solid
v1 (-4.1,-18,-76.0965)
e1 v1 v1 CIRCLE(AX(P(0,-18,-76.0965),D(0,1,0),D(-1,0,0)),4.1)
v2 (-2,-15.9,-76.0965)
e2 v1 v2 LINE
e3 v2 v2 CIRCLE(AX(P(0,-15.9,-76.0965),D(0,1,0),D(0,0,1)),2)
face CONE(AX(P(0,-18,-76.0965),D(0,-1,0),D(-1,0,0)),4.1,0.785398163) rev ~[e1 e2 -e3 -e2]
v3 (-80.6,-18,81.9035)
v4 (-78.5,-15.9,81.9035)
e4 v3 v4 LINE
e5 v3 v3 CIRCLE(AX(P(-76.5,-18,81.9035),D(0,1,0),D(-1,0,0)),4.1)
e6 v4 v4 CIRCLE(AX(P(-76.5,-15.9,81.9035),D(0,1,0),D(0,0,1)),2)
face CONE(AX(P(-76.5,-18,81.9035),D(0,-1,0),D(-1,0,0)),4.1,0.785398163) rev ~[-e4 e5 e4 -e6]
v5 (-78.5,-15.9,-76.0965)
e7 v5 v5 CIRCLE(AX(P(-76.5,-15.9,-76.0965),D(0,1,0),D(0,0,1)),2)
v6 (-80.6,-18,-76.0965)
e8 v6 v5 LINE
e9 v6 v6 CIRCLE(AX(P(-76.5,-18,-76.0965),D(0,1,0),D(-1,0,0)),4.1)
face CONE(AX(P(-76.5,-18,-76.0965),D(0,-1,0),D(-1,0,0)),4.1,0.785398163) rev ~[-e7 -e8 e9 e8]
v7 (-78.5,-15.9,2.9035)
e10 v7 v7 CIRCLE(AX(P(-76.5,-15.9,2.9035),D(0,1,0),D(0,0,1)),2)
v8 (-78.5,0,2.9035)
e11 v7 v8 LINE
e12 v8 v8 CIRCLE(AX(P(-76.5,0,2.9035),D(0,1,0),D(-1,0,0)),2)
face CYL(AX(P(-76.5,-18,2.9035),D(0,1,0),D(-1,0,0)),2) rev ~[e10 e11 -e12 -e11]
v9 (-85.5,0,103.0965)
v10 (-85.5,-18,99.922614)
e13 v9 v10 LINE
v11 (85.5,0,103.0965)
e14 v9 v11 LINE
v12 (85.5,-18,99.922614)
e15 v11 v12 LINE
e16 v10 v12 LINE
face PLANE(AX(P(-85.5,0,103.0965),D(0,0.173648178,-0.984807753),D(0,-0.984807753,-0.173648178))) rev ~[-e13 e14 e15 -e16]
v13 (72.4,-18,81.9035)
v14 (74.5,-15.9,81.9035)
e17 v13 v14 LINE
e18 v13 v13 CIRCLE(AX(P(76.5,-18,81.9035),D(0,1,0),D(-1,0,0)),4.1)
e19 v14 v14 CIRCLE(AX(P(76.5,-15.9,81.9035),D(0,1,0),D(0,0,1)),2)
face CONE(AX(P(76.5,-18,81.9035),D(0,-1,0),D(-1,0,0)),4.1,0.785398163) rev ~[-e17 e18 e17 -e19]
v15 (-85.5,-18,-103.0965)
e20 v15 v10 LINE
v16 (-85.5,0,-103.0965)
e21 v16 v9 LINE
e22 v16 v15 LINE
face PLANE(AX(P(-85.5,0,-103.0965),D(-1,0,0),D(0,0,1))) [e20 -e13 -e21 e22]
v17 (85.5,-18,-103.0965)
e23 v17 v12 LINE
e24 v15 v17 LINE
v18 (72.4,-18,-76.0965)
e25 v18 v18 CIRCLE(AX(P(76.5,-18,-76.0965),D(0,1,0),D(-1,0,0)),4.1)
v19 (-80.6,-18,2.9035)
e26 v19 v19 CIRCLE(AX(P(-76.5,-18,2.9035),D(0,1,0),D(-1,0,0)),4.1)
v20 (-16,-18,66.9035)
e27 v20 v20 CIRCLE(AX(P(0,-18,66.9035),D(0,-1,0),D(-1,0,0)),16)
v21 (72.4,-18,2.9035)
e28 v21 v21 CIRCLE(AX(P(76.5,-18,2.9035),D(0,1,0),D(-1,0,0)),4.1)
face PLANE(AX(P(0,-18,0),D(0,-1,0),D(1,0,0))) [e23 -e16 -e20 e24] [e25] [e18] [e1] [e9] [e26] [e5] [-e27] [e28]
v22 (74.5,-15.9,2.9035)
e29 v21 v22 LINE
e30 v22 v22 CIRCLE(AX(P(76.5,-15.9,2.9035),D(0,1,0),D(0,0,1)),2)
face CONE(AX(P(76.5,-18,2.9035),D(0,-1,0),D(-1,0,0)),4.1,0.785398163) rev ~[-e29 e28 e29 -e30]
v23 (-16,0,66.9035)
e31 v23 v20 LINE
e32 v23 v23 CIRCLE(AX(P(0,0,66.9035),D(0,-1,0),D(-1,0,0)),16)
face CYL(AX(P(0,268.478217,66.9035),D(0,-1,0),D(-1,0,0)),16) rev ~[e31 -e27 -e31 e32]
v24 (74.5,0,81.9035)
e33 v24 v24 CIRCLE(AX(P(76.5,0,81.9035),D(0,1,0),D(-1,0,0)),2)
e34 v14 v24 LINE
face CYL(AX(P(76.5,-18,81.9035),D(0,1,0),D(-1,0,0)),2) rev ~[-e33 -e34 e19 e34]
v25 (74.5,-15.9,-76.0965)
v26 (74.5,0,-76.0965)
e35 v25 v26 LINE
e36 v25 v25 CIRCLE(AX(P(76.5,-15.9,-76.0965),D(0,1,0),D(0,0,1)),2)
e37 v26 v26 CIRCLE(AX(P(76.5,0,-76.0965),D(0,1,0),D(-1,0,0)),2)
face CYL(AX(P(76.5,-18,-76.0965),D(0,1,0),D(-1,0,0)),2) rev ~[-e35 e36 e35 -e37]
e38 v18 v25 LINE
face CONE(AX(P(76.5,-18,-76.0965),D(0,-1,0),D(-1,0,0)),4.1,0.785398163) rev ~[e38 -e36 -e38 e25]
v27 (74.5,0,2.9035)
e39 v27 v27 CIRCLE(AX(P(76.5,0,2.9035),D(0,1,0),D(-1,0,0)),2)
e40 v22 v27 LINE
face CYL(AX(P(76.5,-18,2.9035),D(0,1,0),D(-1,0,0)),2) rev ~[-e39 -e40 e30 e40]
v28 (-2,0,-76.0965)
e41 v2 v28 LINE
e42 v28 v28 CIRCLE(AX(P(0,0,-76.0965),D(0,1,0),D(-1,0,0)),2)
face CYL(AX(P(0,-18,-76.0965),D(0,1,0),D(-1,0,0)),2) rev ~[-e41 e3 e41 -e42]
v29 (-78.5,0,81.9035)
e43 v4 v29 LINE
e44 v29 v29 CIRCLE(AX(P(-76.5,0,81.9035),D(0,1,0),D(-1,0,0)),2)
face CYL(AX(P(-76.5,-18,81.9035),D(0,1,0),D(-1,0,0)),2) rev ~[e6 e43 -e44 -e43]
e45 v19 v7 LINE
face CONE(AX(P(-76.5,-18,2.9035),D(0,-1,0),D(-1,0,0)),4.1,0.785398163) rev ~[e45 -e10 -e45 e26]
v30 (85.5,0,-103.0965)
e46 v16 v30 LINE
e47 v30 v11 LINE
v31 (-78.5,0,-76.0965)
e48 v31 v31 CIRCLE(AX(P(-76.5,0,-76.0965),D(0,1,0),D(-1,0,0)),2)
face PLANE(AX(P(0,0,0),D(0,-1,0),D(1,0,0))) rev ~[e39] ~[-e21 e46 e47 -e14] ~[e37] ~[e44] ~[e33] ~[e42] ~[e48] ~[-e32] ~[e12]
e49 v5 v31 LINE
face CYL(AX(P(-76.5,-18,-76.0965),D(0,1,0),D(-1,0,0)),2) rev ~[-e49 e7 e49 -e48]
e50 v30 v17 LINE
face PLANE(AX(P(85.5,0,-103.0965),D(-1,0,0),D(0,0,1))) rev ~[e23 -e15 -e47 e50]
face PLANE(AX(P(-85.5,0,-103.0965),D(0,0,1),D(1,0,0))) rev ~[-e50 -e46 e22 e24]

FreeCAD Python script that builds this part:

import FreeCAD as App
import Part
import Sketcher
from FreeCAD import Vector
Q = App.Units.Quantity

doc = App.newDocument("Part")
body = doc.addObject("PartDesign::Body", "Body")

# Sketch on XZ plane
sketch1 = body.newObject("Sketcher::SketchObject", "Sketch")
sketch1.AttachmentSupport = (doc.getObject("XZ_Plane"), [""])
sketch1.MapMode = "FlatFace"
sketch1.addGeometry([
    Part.LineSegment(Vector(-85.5, 103.0965, 0), Vector(-85.5, -103.0965, 0)),
    Part.LineSegment(Vector(-85.5, -103.0965, 0), Vector(85.5, -103.0965, 0)),
    Part.LineSegment(Vector(85.5, -103.0965, 0), Vector(85.5, 103.0965, 0)),
    Part.LineSegment(Vector(85.5, 103.0965, 0), Vector(-85.5, 103.0965, 0)),
], False)
sketch1.addConstraint([
    Sketcher.Constraint("Coincident", 0, 2, 1, 1),
    Sketcher.Constraint("Coincident", 1, 2, 2, 1),
    Sketcher.Constraint("Coincident", 2, 2, 3, 1),
    Sketcher.Constraint("Coincident", 3, 2, 0, 1),
    Sketcher.Constraint("Vertical", 0),
    Sketcher.Constraint("Horizontal", 1),
    Sketcher.Constraint("Vertical", 2),
    Sketcher.Constraint("Horizontal", 3),
    Sketcher.Constraint("Symmetric", 0, 2, 2, 2, -1, 1),
    Sketcher.Constraint("DistanceX", 1, 1, 1, 2, Q("171 mm")),
    Sketcher.Constraint("DistanceY", 0, 2, 0, 1, Q("206.193 mm")),
])
pad1 = body.newObject("PartDesign::Pad", "Pad")
pad1.Profile = sketch1
pad1.Length = 18

# Sketch on XZ plane
sketch2 = body.newObject("Sketcher::SketchObject", "Sketch001")
sketch2.AttachmentSupport = (doc.getObject("XZ_Plane"), [""])
sketch2.MapMode = "FlatFace"
sketch2.addGeometry(Part.Circle(Vector(0, 66.9035, 0), Vector(0, 0, 1), 16), False)
sketch2.addConstraint([
    Sketcher.Constraint("PointOnObject", 0, 3, -2),
    Sketcher.Constraint("Diameter", 0, Q("32 mm")),
    Sketcher.Constraint("DistanceY", -1, 1, 0, 3, Q("66.9035 mm")),
])
doc.recompute()
hole = body.newObject("PartDesign::Hole", "Hole")
hole.Profile = sketch2
hole.ThreadType = "None"
hole.Diameter = 32
hole.DepthType = "ThroughAll"
hole.Reversed = True

# Sketch on YZ plane
sketch3 = body.newObject("Sketcher::SketchObject", "Sketch002")
sketch3.AttachmentSupport = (doc.getObject("YZ_Plane"), [""])
sketch3.MapMode = "FlatFace"
sketch3.AttachmentOffset = App.Placement(Vector(0, 0, -85.5), App.Rotation())
sketch3.addGeometry([
    Part.LineSegment(Vector(-18, 103.0965, 0), Vector(0, 103.0965, 0)),
    Part.LineSegment(Vector(0, 103.0965, 0), Vector(-18, 99.922614, 0)),
    Part.LineSegment(Vector(-18, 99.922614, 0), Vector(-18, 103.0965, 0)),
], False)
sketch3.addConstraint([
    Sketcher.Constraint("Coincident", 0, 2, 1, 1),
    Sketcher.Constraint("Coincident", 1, 2, 2, 1),
    Sketcher.Constraint("Coincident", 2, 2, 0, 1),
    Sketcher.Constraint("Horizontal", 0),
    Sketcher.Constraint("Vertical", 2),
    Sketcher.Constraint("PointOnObject", 0, 2, -2),
    Sketcher.Constraint("DistanceX", 0, 1, 0, 2, Q("18 mm")),
    Sketcher.Constraint("Angle", 1, Q("-170 deg")),
    Sketcher.Constraint("DistanceY", -1, 1, 0, 2, Q("103.0965 mm")),
])
pocket1 = body.newObject("PartDesign::Pocket", "Pocket")
pocket1.Profile = sketch3
pocket1.Type = "ThroughAll"
pocket1.Reversed = True

# Sketch on XZ plane
sketch4 = body.newObject("Sketcher::SketchObject", "Sketch003")
sketch4.AttachmentSupport = (doc.getObject("XZ_Plane"), [""])
sketch4.MapMode = "FlatFace"
sketch4.AttachmentOffset = App.Placement(Vector(0, 0, 18), App.Rotation())
sketch4.addGeometry(Part.Circle(Vector(0, -76.0965, 0), Vector(0, 0, 1), 2), False)
sketch4.addConstraint([
    Sketcher.Constraint("PointOnObject", 0, 3, -2),
    Sketcher.Constraint("Diameter", 0, Q("4 mm")),
    Sketcher.Constraint("DistanceY", 0, 3, -1, 1, Q("76.0965 mm")),
])
doc.recompute()
hole2 = body.newObject("PartDesign::Hole", "Hole001")
hole2.Profile = sketch4
hole2.ThreadType = "None"
hole2.Diameter = 4
hole2.DepthType = "ThroughAll"
hole2.HoleCutType = "Countersink"
hole2.HoleCutDiameter = 8.2
hole2.HoleCutCountersinkAngle = 90

# Sketch on XZ plane
sketch5 = body.newObject("Sketcher::SketchObject", "Sketch004")
sketch5.AttachmentSupport = (doc.getObject("XZ_Plane"), [""])
sketch5.MapMode = "FlatFace"
sketch5.AttachmentOffset = App.Placement(Vector(0, 0, 18), App.Rotation())
sketch5.addGeometry([
    Part.Circle(Vector(-76.5, -76.0965, 0), Vector(0, 0, 1), 2),
    Part.Circle(Vector(76.5, -76.0965, 0), Vector(0, 0, 1), 2),
], False)
sketch5.addConstraint([
    Sketcher.Constraint("Equal", 0, 1),
    Sketcher.Constraint("Symmetric", 0, 3, 1, 3, -2),
    Sketcher.Constraint("Diameter", 0, Q("4 mm")),
    Sketcher.Constraint("DistanceX", 0, 3, 1, 3, Q("153 mm")),
    Sketcher.Constraint("DistanceY", 0, 3, -1, 1, Q("76.0965 mm")),
])
doc.recompute()
hole3 = body.newObject("PartDesign::Hole", "Hole002")
hole3.Profile = sketch5
hole3.ThreadType = "None"
hole3.Diameter = 4
hole3.DepthType = "ThroughAll"
hole3.HoleCutType = "Countersink"
hole3.HoleCutDiameter = 8.2
hole3.HoleCutCountersinkAngle = 90

# Sketch on XZ plane
sketch6 = body.newObject("Sketcher::SketchObject", "Sketch005")
sketch6.AttachmentSupport = (doc.getObject("XZ_Plane"), [""])
sketch6.MapMode = "FlatFace"
sketch6.AttachmentOffset = App.Placement(Vector(0, 0, 18), App.Rotation())
sketch6.addGeometry([
    Part.Circle(Vector(-76.5, 81.9035, 0), Vector(0, 0, 1), 2),
    Part.Circle(Vector(76.5, 81.9035, 0), Vector(0, 0, 1), 2),
], False)
sketch6.addConstraint([
    Sketcher.Constraint("Equal", 0, 1),
    Sketcher.Constraint("Symmetric", 0, 3, 1, 3, -2),
    Sketcher.Constraint("Diameter", 0, Q("4 mm")),
    Sketcher.Constraint("DistanceX", 0, 3, 1, 3, Q("153 mm")),
    Sketcher.Constraint("DistanceY", -1, 1, 0, 3, Q("81.9035 mm")),
])
doc.recompute()
hole4 = body.newObject("PartDesign::Hole", "Hole003")
hole4.Profile = sketch6
hole4.ThreadType = "None"
hole4.Diameter = 4
hole4.DepthType = "ThroughAll"
hole4.HoleCutType = "Countersink"
hole4.HoleCutDiameter = 8.2
hole4.HoleCutCountersinkAngle = 90

# Sketch on XZ plane
sketch7 = body.newObject("Sketcher::SketchObject", "Sketch006")
sketch7.AttachmentSupport = (doc.getObject("XZ_Plane"), [""])
sketch7.MapMode = "FlatFace"
sketch7.AttachmentOffset = App.Placement(Vector(0, 0, 18), App.Rotation())
sketch7.addGeometry([
    Part.Circle(Vector(-76.5, 2.9035, 0), Vector(0, 0, 1), 2),
    Part.Circle(Vector(76.5, 2.9035, 0), Vector(0, 0, 1), 2),
], False)
sketch7.addConstraint([
    Sketcher.Constraint("Equal", 0, 1),
    Sketcher.Constraint("Symmetric", 0, 3, 1, 3, -2),
    Sketcher.Constraint("Diameter", 0, Q("4 mm")),
    Sketcher.Constraint("DistanceX", 0, 3, 1, 3, Q("153 mm")),
    Sketcher.Constraint("DistanceY", -1, 1, 0, 3, Q("2.9035 mm")),
])
doc.recompute()
hole5 = body.newObject("PartDesign::Hole", "Hole004")
hole5.Profile = sketch7
hole5.ThreadType = "None"
hole5.Diameter = 4
hole5.DepthType = "ThroughAll"
hole5.HoleCutType = "Countersink"
hole5.HoleCutDiameter = 8.2
hole5.HoleCutCountersinkAngle = 90

doc.recompute()
